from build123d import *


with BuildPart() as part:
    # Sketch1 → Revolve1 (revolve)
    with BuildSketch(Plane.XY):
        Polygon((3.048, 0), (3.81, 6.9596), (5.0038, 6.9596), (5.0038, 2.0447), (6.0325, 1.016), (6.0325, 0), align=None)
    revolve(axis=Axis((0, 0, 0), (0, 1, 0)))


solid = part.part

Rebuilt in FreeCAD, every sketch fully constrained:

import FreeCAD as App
import Part
import Sketcher
from FreeCAD import Vector
Q = App.Units.Quantity

doc = App.newDocument("Part")
body = doc.addObject("PartDesign::Body", "Body")

# Sketch on XY plane
sketch1 = body.newObject("Sketcher::SketchObject", "Sketch")
sketch1.AttachmentSupport = (doc.getObject("XY_Plane"), [""])
sketch1.MapMode = "FlatFace"
sketch1.addGeometry([
    Part.LineSegment(Vector(3.8, 7, 0), Vector(3, 0, 0)),  # 0
    Part.LineSegment(Vector(3, 0, 0), Vector(6, 0, 0)),  # 1
    Part.LineSegment(Vector(6, 0, 0), Vector(6, 1, 0)),  # 2
    Part.LineSegment(Vector(6, 1, 0), Vector(5, 2, 0)),  # 3
    Part.LineSegment(Vector(5, 2, 0), Vector(5, 7, 0)),  # 4
    Part.LineSegment(Vector(5, 7, 0), Vector(3.8, 7, 0)),  # 5
], False)
sketch1.addConstraint([
    Sketcher.Constraint("Coincident", 0, 2, 1, 1),
    Sketcher.Constraint("Coincident", 1, 2, 2, 1),
    Sketcher.Constraint("Coincident", 2, 2, 3, 1),
    Sketcher.Constraint("Coincident", 3, 2, 4, 1),
    Sketcher.Constraint("Coincident", 4, 2, 5, 1),
    Sketcher.Constraint("Coincident", 5, 2, 0, 1),
    Sketcher.Constraint("Horizontal", 1),
    Sketcher.Constraint("Vertical", 2),
    Sketcher.Constraint("Vertical", 4),
    Sketcher.Constraint("Horizontal", 5),
    Sketcher.Constraint("PointOnObject", 0, 2, -1),
    Sketcher.Constraint("Angle", 3, Q("135 deg")),
    Sketcher.Constraint("DistanceY", 2, 1, 2, 2, Q("0.04 in")),
    Sketcher.Constraint("DistanceX", 5, 2, 5, 1, Q("0.047 in")),
    Sketcher.Constraint("DistanceX", -1, 1, 0, 2, Q("0.12 in")),
    Sketcher.Constraint("DistanceX", -1, 1, 5, 2, Q("0.15 in")),
    Sketcher.Constraint("DistanceX", 1, 1, 1, 2, Q("0.1175 in")),
    Sketcher.Constraint("DistanceY", 4, 1, 4, 2, Q("0.1935 in")),
])
revolution = body.newObject("PartDesign::Revolution", "Revolution")
revolution.Profile = sketch1
revolution.ReferenceAxis = (sketch1, ["V_Axis"])
revolution.Angle = 360

doc.recompute()
